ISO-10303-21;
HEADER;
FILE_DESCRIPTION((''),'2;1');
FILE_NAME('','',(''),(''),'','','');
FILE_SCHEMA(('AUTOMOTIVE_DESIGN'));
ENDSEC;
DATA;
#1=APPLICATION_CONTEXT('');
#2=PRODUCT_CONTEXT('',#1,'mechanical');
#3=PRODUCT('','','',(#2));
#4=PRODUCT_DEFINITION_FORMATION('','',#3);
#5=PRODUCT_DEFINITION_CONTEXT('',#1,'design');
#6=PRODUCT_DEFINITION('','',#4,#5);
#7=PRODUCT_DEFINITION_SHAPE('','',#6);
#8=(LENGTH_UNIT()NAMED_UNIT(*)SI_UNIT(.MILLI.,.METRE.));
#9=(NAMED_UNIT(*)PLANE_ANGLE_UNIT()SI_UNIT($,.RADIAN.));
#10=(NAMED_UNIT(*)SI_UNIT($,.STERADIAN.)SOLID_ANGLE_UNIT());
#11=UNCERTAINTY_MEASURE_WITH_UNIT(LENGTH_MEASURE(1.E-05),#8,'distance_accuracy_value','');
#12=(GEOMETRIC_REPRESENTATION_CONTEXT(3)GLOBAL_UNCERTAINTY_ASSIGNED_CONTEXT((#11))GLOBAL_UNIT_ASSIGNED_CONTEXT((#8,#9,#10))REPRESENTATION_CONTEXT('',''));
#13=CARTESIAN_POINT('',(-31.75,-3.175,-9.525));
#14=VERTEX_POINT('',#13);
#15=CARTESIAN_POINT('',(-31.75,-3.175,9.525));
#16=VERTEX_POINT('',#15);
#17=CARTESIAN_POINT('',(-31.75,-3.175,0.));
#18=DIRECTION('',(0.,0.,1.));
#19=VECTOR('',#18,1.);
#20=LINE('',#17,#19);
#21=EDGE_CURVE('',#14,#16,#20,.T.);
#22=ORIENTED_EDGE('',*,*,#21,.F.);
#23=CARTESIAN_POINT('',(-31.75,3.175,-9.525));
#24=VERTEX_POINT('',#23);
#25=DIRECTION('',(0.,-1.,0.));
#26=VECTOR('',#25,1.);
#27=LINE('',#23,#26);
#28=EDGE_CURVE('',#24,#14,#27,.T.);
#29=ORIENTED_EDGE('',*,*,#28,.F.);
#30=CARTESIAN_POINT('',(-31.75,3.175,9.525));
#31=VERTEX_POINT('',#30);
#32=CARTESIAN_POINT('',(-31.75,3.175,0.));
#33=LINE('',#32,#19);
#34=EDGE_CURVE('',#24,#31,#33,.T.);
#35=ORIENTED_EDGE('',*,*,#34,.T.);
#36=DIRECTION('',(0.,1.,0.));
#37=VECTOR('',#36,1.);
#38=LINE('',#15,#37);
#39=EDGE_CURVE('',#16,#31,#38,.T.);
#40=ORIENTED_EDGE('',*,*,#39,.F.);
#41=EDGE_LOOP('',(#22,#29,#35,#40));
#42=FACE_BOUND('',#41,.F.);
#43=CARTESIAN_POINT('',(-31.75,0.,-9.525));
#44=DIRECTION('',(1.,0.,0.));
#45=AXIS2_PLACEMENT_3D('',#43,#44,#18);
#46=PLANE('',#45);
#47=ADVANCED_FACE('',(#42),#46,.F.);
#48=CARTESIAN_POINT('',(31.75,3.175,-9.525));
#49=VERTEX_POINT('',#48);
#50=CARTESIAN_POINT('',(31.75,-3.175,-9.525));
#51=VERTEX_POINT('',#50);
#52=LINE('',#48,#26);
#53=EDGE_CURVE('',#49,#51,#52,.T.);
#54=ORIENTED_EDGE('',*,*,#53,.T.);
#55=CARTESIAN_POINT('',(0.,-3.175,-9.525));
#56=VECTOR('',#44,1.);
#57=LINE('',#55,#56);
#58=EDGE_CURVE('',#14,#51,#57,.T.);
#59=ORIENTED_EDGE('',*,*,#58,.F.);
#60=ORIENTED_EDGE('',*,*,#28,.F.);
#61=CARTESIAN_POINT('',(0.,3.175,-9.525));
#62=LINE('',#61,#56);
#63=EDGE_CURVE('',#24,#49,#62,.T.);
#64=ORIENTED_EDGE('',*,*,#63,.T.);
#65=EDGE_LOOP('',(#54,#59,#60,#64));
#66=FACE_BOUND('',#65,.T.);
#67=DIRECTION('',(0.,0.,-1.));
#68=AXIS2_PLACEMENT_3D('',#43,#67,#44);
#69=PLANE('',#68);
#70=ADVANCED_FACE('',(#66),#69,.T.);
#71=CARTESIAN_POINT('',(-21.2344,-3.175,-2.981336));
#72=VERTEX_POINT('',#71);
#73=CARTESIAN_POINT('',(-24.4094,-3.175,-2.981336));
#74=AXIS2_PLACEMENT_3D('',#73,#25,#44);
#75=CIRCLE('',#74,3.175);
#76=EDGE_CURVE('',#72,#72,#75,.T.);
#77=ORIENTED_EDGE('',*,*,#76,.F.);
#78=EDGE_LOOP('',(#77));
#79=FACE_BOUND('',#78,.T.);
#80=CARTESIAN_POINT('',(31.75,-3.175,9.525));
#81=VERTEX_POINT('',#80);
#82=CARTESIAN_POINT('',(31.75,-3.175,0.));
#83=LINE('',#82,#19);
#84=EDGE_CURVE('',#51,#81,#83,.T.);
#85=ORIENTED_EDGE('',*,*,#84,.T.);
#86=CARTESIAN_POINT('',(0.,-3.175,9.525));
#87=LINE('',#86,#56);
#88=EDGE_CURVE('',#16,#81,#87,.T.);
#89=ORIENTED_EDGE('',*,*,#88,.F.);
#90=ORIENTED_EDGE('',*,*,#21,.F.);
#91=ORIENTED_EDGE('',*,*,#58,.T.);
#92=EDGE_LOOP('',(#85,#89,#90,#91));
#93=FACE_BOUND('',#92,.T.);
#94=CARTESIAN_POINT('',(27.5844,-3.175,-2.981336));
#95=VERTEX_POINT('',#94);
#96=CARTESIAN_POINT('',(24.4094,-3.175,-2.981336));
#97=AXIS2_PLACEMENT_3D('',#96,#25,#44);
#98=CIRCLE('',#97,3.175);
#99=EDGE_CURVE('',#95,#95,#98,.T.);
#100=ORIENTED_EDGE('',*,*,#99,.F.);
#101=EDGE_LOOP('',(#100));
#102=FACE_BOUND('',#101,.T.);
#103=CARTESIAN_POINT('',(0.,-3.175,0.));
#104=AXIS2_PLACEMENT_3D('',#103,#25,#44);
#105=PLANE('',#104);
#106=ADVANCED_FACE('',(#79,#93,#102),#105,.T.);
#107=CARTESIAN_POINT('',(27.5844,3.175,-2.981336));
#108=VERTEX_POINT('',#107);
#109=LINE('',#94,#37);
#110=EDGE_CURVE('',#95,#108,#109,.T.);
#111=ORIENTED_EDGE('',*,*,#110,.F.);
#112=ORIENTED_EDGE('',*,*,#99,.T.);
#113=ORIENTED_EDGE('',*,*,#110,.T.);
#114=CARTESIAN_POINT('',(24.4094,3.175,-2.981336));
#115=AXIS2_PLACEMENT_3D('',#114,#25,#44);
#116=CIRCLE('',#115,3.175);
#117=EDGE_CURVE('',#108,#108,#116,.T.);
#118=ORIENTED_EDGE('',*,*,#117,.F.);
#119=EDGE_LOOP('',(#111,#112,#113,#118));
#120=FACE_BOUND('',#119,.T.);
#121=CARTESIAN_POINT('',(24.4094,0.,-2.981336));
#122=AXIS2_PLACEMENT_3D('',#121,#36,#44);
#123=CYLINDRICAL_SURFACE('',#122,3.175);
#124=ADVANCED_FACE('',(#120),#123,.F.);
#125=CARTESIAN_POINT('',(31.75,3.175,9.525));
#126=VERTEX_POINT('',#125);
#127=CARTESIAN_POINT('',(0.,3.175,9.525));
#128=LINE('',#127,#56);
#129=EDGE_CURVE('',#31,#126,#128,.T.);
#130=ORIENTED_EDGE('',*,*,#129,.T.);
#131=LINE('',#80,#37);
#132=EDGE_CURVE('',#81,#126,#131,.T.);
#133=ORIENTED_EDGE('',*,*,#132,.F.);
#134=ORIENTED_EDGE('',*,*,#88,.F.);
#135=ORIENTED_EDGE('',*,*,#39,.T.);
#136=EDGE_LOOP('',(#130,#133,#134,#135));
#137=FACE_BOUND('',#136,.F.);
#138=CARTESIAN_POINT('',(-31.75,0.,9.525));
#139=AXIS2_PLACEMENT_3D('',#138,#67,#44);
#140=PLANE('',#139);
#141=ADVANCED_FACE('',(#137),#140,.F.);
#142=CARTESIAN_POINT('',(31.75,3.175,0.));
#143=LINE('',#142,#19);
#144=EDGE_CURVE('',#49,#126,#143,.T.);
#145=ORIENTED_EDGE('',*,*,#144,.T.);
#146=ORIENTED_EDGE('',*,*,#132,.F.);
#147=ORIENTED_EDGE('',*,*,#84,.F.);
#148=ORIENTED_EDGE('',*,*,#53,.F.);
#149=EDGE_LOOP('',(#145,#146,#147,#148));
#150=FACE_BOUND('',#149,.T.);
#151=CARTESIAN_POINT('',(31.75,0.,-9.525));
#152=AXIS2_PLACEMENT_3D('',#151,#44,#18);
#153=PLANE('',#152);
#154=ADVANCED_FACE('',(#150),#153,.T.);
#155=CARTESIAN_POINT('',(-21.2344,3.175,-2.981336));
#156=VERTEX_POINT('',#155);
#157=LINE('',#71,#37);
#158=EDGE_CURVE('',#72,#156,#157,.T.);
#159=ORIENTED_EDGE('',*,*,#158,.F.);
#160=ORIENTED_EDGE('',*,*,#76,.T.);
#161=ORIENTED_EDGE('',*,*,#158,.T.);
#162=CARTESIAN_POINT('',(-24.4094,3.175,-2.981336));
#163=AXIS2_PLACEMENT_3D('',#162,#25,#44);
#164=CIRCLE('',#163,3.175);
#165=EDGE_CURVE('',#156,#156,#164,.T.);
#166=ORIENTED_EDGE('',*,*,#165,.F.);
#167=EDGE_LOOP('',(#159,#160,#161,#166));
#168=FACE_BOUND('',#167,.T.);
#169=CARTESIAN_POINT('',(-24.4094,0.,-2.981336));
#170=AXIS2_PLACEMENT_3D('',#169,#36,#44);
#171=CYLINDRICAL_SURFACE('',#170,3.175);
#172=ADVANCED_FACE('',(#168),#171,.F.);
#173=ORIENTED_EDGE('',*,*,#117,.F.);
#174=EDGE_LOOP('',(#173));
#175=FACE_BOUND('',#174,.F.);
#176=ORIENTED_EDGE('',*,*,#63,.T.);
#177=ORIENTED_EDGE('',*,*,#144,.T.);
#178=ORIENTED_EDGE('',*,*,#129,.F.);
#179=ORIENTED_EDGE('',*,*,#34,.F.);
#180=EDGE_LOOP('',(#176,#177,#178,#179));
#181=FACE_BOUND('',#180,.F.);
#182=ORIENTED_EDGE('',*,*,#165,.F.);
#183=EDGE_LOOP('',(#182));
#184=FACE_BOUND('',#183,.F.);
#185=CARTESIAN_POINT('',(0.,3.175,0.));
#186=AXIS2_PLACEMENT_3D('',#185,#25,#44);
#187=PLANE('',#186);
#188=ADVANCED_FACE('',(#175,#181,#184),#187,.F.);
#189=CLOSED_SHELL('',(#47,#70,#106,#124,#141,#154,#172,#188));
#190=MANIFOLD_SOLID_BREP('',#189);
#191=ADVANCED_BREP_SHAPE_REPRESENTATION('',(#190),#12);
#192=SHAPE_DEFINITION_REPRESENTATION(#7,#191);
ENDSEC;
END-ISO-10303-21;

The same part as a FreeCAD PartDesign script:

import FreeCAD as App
import Part
import Sketcher
from FreeCAD import Vector
Q = App.Units.Quantity

doc = App.newDocument("Part")
body = doc.addObject("PartDesign::Body", "Body")

sketch1 = body.newObject("Sketcher::SketchObject", "Sketch")
sketch1.AttachmentSupport = (doc.getObject("XZ_Plane"), [""])
sketch1.MapMode = "FlatFace"
sketch1.addGeometry([
    Part.LineSegment(Vector(-31.8, 9.5, 0), Vector(-31.8, -9.5, 0)),
    Part.LineSegment(Vector(-31.8, -9.5, 0), Vector(31.8, -9.5, 0)),
    Part.LineSegment(Vector(31.8, -9.5, 0), Vector(31.8, 9.5, 0)),
    Part.LineSegment(Vector(31.8, 9.5, 0), Vector(-31.8, 9.5, 0)),
    Part.Circle(Vector(-24.4, -3, 0), Vector(0, 0, 1), 3.2),
    Part.Circle(Vector(24.4, -3, 0), Vector(0, 0, 1), 3.2),
], False)
sketch1.addConstraint([
    Sketcher.Constraint("Coincident", 0, 2, 1, 1),
    Sketcher.Constraint("Coincident", 1, 2, 2, 1),
    Sketcher.Constraint("Coincident", 2, 2, 3, 1),
    Sketcher.Constraint("Coincident", 3, 2, 0, 1),
    Sketcher.Constraint("Vertical", 0),
    Sketcher.Constraint("Horizontal", 1),
    Sketcher.Constraint("Vertical", 2),
    Sketcher.Constraint("Horizontal", 3),
    Sketcher.Constraint("Equal", 4, 5),
    Sketcher.Constraint("Symmetric", 0, 2, 2, 2, -1, 1),
    Sketcher.Constraint("Symmetric", 4, 3, 5, 3, -2),
    Sketcher.Constraint("Diameter", 4, Q("0.25 in")),
    Sketcher.Constraint("DistanceX", 1, 1, 1, 2, Q("2.5 in")),
    Sketcher.Constraint("DistanceY", 0, 2, 0, 1, Q("0.75 in")),
    Sketcher.Constraint("DistanceX", 4, 3, -1, 1, Q("0.961 in")),
    Sketcher.Constraint("DistanceY", 4, 3, -1, 1, Q("2.981336 mm")),
])
pad1 = body.newObject("PartDesign::Pad", "Pad")
pad1.Profile = sketch1
pad1.Length = Q("0.25 in")
pad1.Midplane = True

doc.recompute()
